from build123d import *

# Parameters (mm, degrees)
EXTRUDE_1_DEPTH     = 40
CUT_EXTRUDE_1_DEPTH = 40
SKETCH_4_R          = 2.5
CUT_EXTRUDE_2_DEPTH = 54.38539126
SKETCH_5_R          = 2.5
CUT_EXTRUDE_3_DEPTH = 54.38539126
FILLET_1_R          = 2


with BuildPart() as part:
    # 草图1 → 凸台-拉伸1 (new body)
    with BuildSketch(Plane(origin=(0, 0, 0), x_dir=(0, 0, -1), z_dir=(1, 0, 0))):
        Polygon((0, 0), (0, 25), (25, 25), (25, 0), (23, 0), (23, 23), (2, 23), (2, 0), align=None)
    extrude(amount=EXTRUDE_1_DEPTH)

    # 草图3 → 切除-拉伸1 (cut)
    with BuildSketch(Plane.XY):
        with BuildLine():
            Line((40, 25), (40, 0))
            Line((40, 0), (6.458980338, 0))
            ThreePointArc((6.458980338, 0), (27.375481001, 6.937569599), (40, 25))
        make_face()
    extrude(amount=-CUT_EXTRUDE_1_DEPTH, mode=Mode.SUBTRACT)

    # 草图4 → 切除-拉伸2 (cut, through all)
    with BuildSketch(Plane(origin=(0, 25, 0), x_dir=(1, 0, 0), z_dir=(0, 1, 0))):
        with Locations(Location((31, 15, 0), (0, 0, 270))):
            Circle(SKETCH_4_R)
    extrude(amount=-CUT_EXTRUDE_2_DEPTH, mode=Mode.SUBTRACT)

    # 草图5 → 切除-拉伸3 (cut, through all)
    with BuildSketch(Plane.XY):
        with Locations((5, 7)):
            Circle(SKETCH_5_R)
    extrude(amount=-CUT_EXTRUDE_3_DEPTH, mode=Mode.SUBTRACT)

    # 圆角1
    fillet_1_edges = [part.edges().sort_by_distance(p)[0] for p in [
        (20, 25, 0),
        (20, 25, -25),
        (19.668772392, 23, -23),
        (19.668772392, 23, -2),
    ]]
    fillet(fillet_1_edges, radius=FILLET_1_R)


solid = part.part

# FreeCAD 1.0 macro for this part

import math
import FreeCAD as App
import Part
import Sketcher


def edges_at(feature, points):
    """Names of the edges that pass closest to the given points."""
    edges = feature.Shape.Edges
    near = lambda p: min(range(len(edges)), key=lambda i: edges[i].distToShape(Part.Vertex(*p))[0])
    return sorted({f"Edge{near(p) + 1}" for p in points})


def add_polygon(sketch, points):
    """Adds a closed chain of lines whose ends are joined by coincident constraints."""
    first, n = sketch.GeometryCount, len(points)
    for a, b in zip(points, points[1:] + points[:1]):
        sketch.addGeometry(Part.LineSegment(App.Vector(*a, 0), App.Vector(*b, 0)), False)
    for i in range(n):
        sketch.addConstraint(Sketcher.Constraint("Coincident", first + i, 2, first + (i + 1) % n, 1))

doc = App.newDocument("Part")
body = doc.addObject("PartDesign::Body", "Body")

# Sketch on YZ plane
sketch1 = body.newObject("Sketcher::SketchObject", "Sketch")
sketch1.AttachmentSupport = (doc.getObject("YZ_Plane"), [""])
sketch1.MapMode = "FlatFace"
add_polygon(sketch1, [(25, 0), (0, 0), (0, -2), (23, -2), (23, -23), (0, -23), (0, -25), (25, -25)])  # lines 0-7
sketch1.addConstraint(Sketcher.Constraint("Horizontal", 0))
sketch1.addConstraint(Sketcher.Constraint("Vertical", 1))
sketch1.addConstraint(Sketcher.Constraint("Horizontal", 2))
sketch1.addConstraint(Sketcher.Constraint("Vertical", 3))
sketch1.addConstraint(Sketcher.Constraint("Horizontal", 4))
sketch1.addConstraint(Sketcher.Constraint("Vertical", 5))
sketch1.addConstraint(Sketcher.Constraint("Horizontal", 6))
sketch1.addConstraint(Sketcher.Constraint("Vertical", 7))
sketch1.addConstraint(Sketcher.Constraint("Coincident", 0, 2, -1, 1))
sketch1.addConstraint(Sketcher.Constraint("PointOnObject", 4, 2, -2))
sketch1.addConstraint(Sketcher.Constraint("Equal", 1, 5))
sketch1.addConstraint(Sketcher.Constraint("Equal", 6, 7))
sketch1.addConstraint(Sketcher.Constraint("DistanceX", 0, 2, 0, 1, 25.0))
sketch1.addConstraint(Sketcher.Constraint("DistanceX", 2, 1, 2, 2, 23.0))
sketch1.addConstraint(Sketcher.Constraint("DistanceY", 1, 2, 1, 1, 2.0))
pad1 = body.newObject("PartDesign::Pad", "Pad")
pad1.Profile = sketch1
pad1.Length = 40

# Sketch on XY plane
sketch2 = body.newObject("Sketcher::SketchObject", "Sketch001")
sketch2.AttachmentSupport = (doc.getObject("XY_Plane"), [""])
sketch2.MapMode = "FlatFace"
sketch2.addGeometry(Part.LineSegment(App.Vector(40, 0, 0), App.Vector(40, 25, 0)), False)
sketch2.addGeometry(Part.ArcOfCircle(Part.Circle(App.Vector(6.45898, 35, 0), App.Vector(0, 0, 1), 35), math.radians(-90), math.radians(-16.60155)), False)
sketch2.addGeometry(Part.LineSegment(App.Vector(6.45898, 0, 0), App.Vector(40, 0, 0)), False)
sketch2.addConstraint(Sketcher.Constraint("Coincident", 0, 2, 1, 2))
sketch2.addConstraint(Sketcher.Constraint("Tangent", 1, 1, 2, 1))
sketch2.addConstraint(Sketcher.Constraint("Coincident", 2, 2, 0, 1))
sketch2.addConstraint(Sketcher.Constraint("Vertical", 0))
sketch2.addConstraint(Sketcher.Constraint("Horizontal", 2))
sketch2.addConstraint(Sketcher.Constraint("PointOnObject", 1, 1, -1))
sketch2.addConstraint(Sketcher.Constraint("Radius", 1, 35.0))
sketch2.addConstraint(Sketcher.Constraint("DistanceY", 0, 1, 0, 2, 25.0))
sketch2.addConstraint(Sketcher.Constraint("DistanceX", -1, 1, 0, 2, 40.0))
pocket1 = body.newObject("PartDesign::Pocket", "Pocket")
pocket1.Profile = sketch2
pocket1.Length = 40

# Sketch on XZ plane
sketch3 = body.newObject("Sketcher::SketchObject", "Sketch002")
sketch3.AttachmentSupport = (doc.getObject("XZ_Plane"), [""])
sketch3.MapMode = "FlatFace"
sketch3.AttachmentOffset = App.Placement(App.Vector(0, 0, -25), App.Rotation())
sketch3.addGeometry(Part.Circle(App.Vector(31, -15, 0), App.Vector(0, 0, 1), 2.5), False)
sketch3.addConstraint(Sketcher.Constraint("Diameter", 0, 5.0))
sketch3.addConstraint(Sketcher.Constraint("DistanceX", -1, 1, 0, 3, 31.0))
sketch3.addConstraint(Sketcher.Constraint("DistanceY", 0, 3, -1, 1, 15.0))
pocket2 = body.newObject("PartDesign::Pocket", "Pocket001")
pocket2.Profile = sketch3
pocket2.Type = "ThroughAll"
pocket2.Reversed = True

# Sketch on XY plane
sketch4 = body.newObject("Sketcher::SketchObject", "Sketch003")
sketch4.AttachmentSupport = (doc.getObject("XY_Plane"), [""])
sketch4.MapMode = "FlatFace"
sketch4.addGeometry(Part.Circle(App.Vector(5, 7, 0), App.Vector(0, 0, 1), 2.5), False)
sketch4.addConstraint(Sketcher.Constraint("Diameter", 0, 5.0))
sketch4.addConstraint(Sketcher.Constraint("DistanceX", -1, 1, 0, 3, 5.0))
sketch4.addConstraint(Sketcher.Constraint("DistanceY", -1, 1, 0, 3, 7.0))
pocket3 = body.newObject("PartDesign::Pocket", "Pocket002")
pocket3.Profile = sketch4
pocket3.Type = "ThroughAll"
doc.recompute()

fillet = body.newObject("PartDesign::Fillet", "Fillet")
fillet.Base = (pocket3, edges_at(pocket3, [
    (20, 25, 0),
    (20, 25, -25),
    (19.669, 23, -23),
    (19.669, 23, -2),
]))
fillet.Radius = 2

doc.recompute()
